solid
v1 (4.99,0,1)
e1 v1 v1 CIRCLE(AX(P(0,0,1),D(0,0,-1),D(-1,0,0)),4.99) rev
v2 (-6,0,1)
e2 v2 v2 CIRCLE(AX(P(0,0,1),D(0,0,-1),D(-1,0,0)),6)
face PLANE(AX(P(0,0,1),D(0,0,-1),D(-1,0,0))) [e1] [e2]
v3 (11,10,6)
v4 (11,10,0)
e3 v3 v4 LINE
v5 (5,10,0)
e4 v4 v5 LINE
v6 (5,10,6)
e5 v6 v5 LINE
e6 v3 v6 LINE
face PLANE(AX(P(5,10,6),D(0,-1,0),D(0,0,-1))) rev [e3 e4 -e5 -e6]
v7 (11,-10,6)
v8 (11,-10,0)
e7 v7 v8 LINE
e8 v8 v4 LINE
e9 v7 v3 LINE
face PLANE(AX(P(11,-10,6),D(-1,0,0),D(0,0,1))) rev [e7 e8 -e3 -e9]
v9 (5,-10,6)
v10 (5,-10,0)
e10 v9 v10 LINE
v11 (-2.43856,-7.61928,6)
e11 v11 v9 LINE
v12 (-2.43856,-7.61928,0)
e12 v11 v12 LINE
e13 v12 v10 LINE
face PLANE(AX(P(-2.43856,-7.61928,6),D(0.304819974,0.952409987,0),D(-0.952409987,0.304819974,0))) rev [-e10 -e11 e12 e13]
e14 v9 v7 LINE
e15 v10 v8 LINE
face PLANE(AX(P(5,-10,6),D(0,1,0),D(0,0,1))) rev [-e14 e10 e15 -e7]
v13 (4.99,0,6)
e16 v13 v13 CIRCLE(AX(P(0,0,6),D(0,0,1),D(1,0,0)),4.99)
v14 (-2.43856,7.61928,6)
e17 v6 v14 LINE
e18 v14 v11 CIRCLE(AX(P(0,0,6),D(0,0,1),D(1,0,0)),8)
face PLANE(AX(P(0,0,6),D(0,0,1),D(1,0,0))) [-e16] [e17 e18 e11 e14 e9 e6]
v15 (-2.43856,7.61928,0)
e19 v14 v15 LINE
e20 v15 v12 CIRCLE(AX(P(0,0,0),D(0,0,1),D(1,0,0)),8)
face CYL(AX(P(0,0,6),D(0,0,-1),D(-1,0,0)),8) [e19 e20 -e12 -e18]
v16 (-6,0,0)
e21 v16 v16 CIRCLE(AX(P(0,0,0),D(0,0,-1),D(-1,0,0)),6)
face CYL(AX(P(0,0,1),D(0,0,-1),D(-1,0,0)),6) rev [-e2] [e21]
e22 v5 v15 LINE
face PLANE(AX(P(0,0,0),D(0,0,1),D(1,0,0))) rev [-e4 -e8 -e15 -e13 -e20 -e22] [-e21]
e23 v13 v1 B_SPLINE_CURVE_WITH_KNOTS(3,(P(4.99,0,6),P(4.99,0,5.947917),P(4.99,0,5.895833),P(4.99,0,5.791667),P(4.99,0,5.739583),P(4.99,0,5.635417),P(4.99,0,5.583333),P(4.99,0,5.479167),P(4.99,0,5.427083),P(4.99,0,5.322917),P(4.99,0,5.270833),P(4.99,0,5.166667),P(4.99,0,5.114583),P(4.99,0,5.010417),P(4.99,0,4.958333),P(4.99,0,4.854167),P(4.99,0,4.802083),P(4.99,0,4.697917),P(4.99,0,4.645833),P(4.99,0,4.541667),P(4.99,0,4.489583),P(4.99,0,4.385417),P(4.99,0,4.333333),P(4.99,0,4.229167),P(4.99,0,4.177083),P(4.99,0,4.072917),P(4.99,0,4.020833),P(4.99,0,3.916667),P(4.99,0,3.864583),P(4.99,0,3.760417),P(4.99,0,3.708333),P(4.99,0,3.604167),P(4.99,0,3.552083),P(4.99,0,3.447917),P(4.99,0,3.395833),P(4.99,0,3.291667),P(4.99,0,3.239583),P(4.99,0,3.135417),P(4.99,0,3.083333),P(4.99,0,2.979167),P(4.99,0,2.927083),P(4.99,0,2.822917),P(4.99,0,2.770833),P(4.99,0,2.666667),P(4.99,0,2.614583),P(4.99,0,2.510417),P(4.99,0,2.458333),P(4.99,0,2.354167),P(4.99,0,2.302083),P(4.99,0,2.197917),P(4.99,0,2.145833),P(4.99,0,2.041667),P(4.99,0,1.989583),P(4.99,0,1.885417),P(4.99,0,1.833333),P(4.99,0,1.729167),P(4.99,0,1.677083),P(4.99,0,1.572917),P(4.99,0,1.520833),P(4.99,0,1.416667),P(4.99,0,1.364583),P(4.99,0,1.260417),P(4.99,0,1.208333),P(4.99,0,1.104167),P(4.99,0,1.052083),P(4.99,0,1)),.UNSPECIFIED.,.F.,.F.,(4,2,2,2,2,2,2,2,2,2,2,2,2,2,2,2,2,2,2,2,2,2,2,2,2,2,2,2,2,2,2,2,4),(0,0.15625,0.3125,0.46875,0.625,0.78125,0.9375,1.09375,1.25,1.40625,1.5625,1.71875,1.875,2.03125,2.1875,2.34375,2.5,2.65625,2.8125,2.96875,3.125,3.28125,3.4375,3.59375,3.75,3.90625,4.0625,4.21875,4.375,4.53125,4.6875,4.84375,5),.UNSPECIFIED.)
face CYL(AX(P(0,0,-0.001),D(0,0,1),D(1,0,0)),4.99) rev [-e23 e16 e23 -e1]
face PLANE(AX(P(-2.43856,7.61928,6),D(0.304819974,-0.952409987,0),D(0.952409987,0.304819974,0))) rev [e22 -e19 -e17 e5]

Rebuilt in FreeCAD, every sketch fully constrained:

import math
import FreeCAD as App
import Part
import Sketcher

V = App.Vector

doc = App.newDocument("Part")
params = doc.addObject("Spreadsheet::Sheet", "Params")
for row, (alias, value) in enumerate([
    ("sketch1_diameter", "8 mm"),
    ("sketch1_radius", "8 mm"),
    ("sketch1_width", "6 mm"),
    ("sketch1_height", "20 mm"),
    ("pad1_length", "6 mm"),
    ("sketch2_diameter", "9.98 mm"),
    ("pocket1_length", "6 mm"),
    ("sketch3_diameter", "12 mm"),
    ("pocket2_length", "1 mm"),
], start=1):
    params.set(f"A{row}", alias)
    params.set(f"B{row}", "=" + value)
    params.setAlias(f"B{row}", alias)

body = doc.addObject("PartDesign::Body", "Body")

sketch1 = body.newObject("Sketcher::SketchObject", "Sketch")
sketch1.AttachmentSupport = (doc.getObject("XY_Plane"), [""])
sketch1.MapMode = "FlatFace"
sketch1.addGeometry([
    Part.LineSegment(V(5, 10, 0), V(-2.4, 7.6, 0)),
    Part.ArcOfCircle(Part.Circle(V(0, 0, 0), V(0, 0, 1), 8), math.radians(108), math.radians(252)),
    Part.LineSegment(V(-2.4, -7.6, 0), V(5, -10, 0)),
    Part.LineSegment(V(5, -10, 0), V(11, -10, 0)),
    Part.LineSegment(V(11, -10, 0), V(11, 10, 0)),
    Part.LineSegment(V(11, 10, 0), V(5, 10, 0)),
    Part.Circle(V(0, 0, 0), V(0, 0, 1), 4),
], False)
sketch1.addConstraint([
    Sketcher.Constraint("Tangent", 0, 2, 1, 1),
    Sketcher.Constraint("Tangent", 1, 2, 2, 1),
    Sketcher.Constraint("Coincident", 2, 2, 3, 1),
    Sketcher.Constraint("Coincident", 3, 2, 4, 1),
    Sketcher.Constraint("Coincident", 4, 2, 5, 1),
    Sketcher.Constraint("Coincident", 5, 2, 0, 1),
    Sketcher.Constraint("Horizontal", 3),
    Sketcher.Constraint("Vertical", 4),
    Sketcher.Constraint("Horizontal", 5),
    Sketcher.Constraint("Coincident", 1, 3, -1, 1),
    Sketcher.Constraint("Coincident", 6, 3, -1, 1),
    Sketcher.Constraint("Symmetric", 2, 2, 5, 2, -1),
    Sketcher.Constraint("Diameter", 6, 8.0),
    Sketcher.Constraint("Radius", 1, 8.0),
    Sketcher.Constraint("DistanceX", 3, 1, 3, 2, 6.0),
    Sketcher.Constraint("DistanceY", 4, 1, 4, 2, 20.0),
    Sketcher.Constraint("DistanceX", -1, 1, 2, 2, 5.0),
])
sketch1.setExpression("Constraints[12]", "Params.sketch1_diameter")
sketch1.setExpression("Constraints[13]", "Params.sketch1_radius")
sketch1.setExpression("Constraints[14]", "Params.sketch1_width")
sketch1.setExpression("Constraints[15]", "Params.sketch1_height")
pad1 = body.newObject("PartDesign::Pad", "Pad")
pad1.Profile = sketch1
pad1.setExpression("Length", "Params.pad1_length")

sketch2 = body.newObject("Sketcher::SketchObject", "Sketch001")
sketch2.AttachmentSupport = (doc.getObject("XY_Plane"), [""])
sketch2.MapMode = "FlatFace"
sketch2.AttachmentOffset = App.Placement(V(0, 0, 6), App.Rotation())
sketch2.addGeometry(Part.Circle(V(0, 0, 0), V(0, 0, 1), 5), False)
sketch2.addConstraint([
    Sketcher.Constraint("Coincident", 0, 3, -1, 1),
    Sketcher.Constraint("Diameter", 0, 9.98),
])
sketch2.setExpression("Constraints[1]", "Params.sketch2_diameter")
pocket1 = body.newObject("PartDesign::Pocket", "Pocket")
pocket1.Profile = sketch2
pocket1.setExpression("Length", "Params.pocket1_length")

sketch3 = body.newObject("Sketcher::SketchObject", "Sketch002")
sketch3.AttachmentSupport = (doc.getObject("XY_Plane"), [""])
sketch3.MapMode = "FlatFace"
sketch3.addGeometry(Part.Circle(V(0, 0, 0), V(0, 0, 1), 6), False)
sketch3.addConstraint([
    Sketcher.Constraint("Coincident", 0, 3, -1, 1),
    Sketcher.Constraint("Diameter", 0, 12.0),
])
sketch3.setExpression("Constraints[1]", "Params.sketch3_diameter")
pocket2 = body.newObject("PartDesign::Pocket", "Pocket001")
pocket2.Profile = sketch3
pocket2.setExpression("Length", "Params.pocket2_length")
pocket2.Reversed = True

doc.recompute()
